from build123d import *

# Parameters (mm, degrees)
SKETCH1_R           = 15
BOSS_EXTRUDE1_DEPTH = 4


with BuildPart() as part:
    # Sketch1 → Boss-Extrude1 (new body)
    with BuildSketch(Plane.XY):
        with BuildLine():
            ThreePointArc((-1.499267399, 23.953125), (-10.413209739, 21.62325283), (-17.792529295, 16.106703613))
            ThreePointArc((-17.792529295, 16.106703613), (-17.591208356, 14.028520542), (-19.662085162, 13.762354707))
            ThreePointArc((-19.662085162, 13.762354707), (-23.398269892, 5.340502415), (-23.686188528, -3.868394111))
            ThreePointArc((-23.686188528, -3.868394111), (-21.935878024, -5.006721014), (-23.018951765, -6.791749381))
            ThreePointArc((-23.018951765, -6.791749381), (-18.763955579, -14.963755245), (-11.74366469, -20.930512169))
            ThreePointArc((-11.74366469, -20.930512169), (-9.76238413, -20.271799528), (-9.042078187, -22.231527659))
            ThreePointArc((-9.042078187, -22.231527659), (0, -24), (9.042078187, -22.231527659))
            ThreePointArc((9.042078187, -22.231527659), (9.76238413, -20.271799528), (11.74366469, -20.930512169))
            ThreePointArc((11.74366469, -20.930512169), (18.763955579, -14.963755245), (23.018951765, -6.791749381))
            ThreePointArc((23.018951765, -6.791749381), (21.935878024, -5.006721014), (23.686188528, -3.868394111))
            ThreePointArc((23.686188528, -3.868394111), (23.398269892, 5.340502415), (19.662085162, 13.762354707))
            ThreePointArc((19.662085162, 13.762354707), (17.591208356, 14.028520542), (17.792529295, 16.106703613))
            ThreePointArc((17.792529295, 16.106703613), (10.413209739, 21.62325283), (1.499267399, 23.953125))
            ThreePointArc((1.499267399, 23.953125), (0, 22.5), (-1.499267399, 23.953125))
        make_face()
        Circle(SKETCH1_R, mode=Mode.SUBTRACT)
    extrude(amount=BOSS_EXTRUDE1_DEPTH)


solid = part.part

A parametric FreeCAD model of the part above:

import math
import FreeCAD as App
import Part
import Sketcher

V = App.Vector
Q = App.Units.Quantity

doc = App.newDocument("Part")
body = doc.addObject("PartDesign::Body", "Body")

# Sketch on XY plane
sketch1 = body.newObject("Sketcher::SketchObject", "Sketch")
sketch1.AttachmentSupport = (doc.getObject("XY_Plane"), [""])
sketch1.MapMode = "FlatFace"
sketch1.addGeometry([
    Part.ArcOfCircle(Part.Circle(V(0, 0, 0), V(0, 0, 1), 24), math.radians(94), math.radians(138)),  # 0
    Part.ArcOfCircle(Part.Circle(V(-18.8, 15, 0), V(0, 0, 1), 1.5), math.radians(-127), math.radians(50)),  # 1
    Part.ArcOfCircle(Part.Circle(V(0, 0, 0), V(0, 0, 1), 24), math.radians(145), math.radians(189)),  # 2
    Part.ArcOfCircle(Part.Circle(V(-23.4, -5.3, 0), V(0, 0, 1), 1.5), math.radians(-75), math.radians(101)),  # 3
    Part.ArcOfCircle(Part.Circle(V(0, 0, 0), V(0, 0, 1), 24), math.radians(-164), math.radians(-119)),  # 4
    Part.ArcOfCircle(Part.Circle(V(-10.4, -21.6, 0), V(0, 0, 1), 1.5), math.radians(-24), math.radians(152)),  # 5
    Part.ArcOfCircle(Part.Circle(V(0, 0, 0), V(0, 0, 1), 24), math.radians(-112), math.radians(-68)),  # 6
    Part.ArcOfCircle(Part.Circle(V(10.4, -21.6, 0), V(0, 0, 1), 1.5), math.radians(28), math.radians(204)),  # 7
    Part.ArcOfCircle(Part.Circle(V(0, 0, 0), V(0, 0, 1), 24), math.radians(-61), math.radians(-16)),  # 8
    Part.ArcOfCircle(Part.Circle(V(23.4, -5.3, 0), V(0, 0, 1), 1.5), math.radians(79), math.radians(255)),  # 9
    Part.ArcOfCircle(Part.Circle(V(0, 0, 0), V(0, 0, 1), 24), math.radians(-9), math.radians(35)),  # 10
    Part.ArcOfCircle(Part.Circle(V(18.8, 15, 0), V(0, 0, 1), 1.5), math.radians(130), math.radians(307)),  # 11
    Part.ArcOfCircle(Part.Circle(V(0, 0, 0), V(0, 0, 1), 24), math.radians(42), math.radians(86)),  # 12
    Part.ArcOfCircle(Part.Circle(V(0, 24, 0), V(0, 0, 1), 1.5), math.radians(-178), math.radians(-2)),  # 13
    Part.Circle(V(0, 0, 0), V(0, 0, 1), 15),  # 14
], False)
sketch1.addConstraint([
    Sketcher.Constraint("Coincident", 0, 2, 1, 2),
    Sketcher.Constraint("Coincident", 1, 1, 2, 1),
    Sketcher.Constraint("Coincident", 2, 2, 3, 2),
    Sketcher.Constraint("Coincident", 3, 1, 4, 1),
    Sketcher.Constraint("Coincident", 4, 2, 5, 2),
    Sketcher.Constraint("Coincident", 5, 1, 6, 1),
    Sketcher.Constraint("Coincident", 6, 2, 7, 2),
    Sketcher.Constraint("Coincident", 7, 1, 8, 1),
    Sketcher.Constraint("Coincident", 8, 2, 9, 2),
    Sketcher.Constraint("Coincident", 9, 1, 10, 1),
    Sketcher.Constraint("Coincident", 10, 2, 11, 2),
    Sketcher.Constraint("Coincident", 11, 1, 12, 1),
    Sketcher.Constraint("Coincident", 12, 2, 13, 2),
    Sketcher.Constraint("Coincident", 13, 1, 0, 1),
    Sketcher.Constraint("Coincident", 0, 3, -1, 1),
    Sketcher.Constraint("Coincident", 2, 3, -1, 1),
    Sketcher.Constraint("Coincident", 4, 3, -1, 1),
    Sketcher.Constraint("Coincident", 6, 3, -1, 1),
    Sketcher.Constraint("Coincident", 8, 3, -1, 1),
    Sketcher.Constraint("Coincident", 10, 3, -1, 1),
    Sketcher.Constraint("Coincident", 12, 3, -1, 1),
    Sketcher.Constraint("Coincident", 14, 3, -1, 1),
    Sketcher.Constraint("Equal", 0, 2),
    Sketcher.Constraint("Equal", 1, 3),
    Sketcher.Constraint("Equal", 2, 4),
    Sketcher.Constraint("Equal", 3, 5),
    Sketcher.Constraint("Equal", 4, 6),
    Sketcher.Constraint("Equal", 5, 7),
    Sketcher.Constraint("Equal", 6, 8),
    Sketcher.Constraint("Equal", 7, 9),
    Sketcher.Constraint("Equal", 8, 10),
    Sketcher.Constraint("Equal", 9, 11),
    Sketcher.Constraint("Equal", 10, 12),
    Sketcher.Constraint("Equal", 11, 13),
    Sketcher.Constraint("Symmetric", 5, 3, 7, 3, -2),
    Sketcher.Constraint("Symmetric", 3, 3, 9, 3, -2),
    Sketcher.Constraint("Symmetric", 1, 3, 11, 3, -2),
    Sketcher.Constraint("PointOnObject", 13, 3, -2),
    Sketcher.Constraint("Diameter", 14, Q("30 mm")),
    Sketcher.Constraint("Radius", 0, Q("24 mm")),
    Sketcher.Constraint("Radius", 1, Q("1.5 mm")),
    Sketcher.Constraint("DistanceY", -1, 1, 13, 3, Q("24 mm")),
    Sketcher.Constraint("DistanceY", 1, 1, 1, 3, Q("1.201401 mm")),
    Sketcher.Constraint("DistanceX", 3, 3, -1, 1, Q("23.39827 mm")),
    Sketcher.Constraint("DistanceX", 5, 3, -1, 1, Q("10.41321 mm")),
    Sketcher.Constraint("DistanceX", 0, 2, -1, 1, Q("17.792529 mm")),
    Sketcher.Constraint("DistanceX", 2, 2, -1, 1, Q("23.686189 mm")),
    Sketcher.Constraint("DistanceX", 5, 1, -1, 1, Q("9.042078 mm")),
])
pad1 = body.newObject("PartDesign::Pad", "Pad")
pad1.Profile = sketch1
pad1.Length = 4

doc.recompute()
